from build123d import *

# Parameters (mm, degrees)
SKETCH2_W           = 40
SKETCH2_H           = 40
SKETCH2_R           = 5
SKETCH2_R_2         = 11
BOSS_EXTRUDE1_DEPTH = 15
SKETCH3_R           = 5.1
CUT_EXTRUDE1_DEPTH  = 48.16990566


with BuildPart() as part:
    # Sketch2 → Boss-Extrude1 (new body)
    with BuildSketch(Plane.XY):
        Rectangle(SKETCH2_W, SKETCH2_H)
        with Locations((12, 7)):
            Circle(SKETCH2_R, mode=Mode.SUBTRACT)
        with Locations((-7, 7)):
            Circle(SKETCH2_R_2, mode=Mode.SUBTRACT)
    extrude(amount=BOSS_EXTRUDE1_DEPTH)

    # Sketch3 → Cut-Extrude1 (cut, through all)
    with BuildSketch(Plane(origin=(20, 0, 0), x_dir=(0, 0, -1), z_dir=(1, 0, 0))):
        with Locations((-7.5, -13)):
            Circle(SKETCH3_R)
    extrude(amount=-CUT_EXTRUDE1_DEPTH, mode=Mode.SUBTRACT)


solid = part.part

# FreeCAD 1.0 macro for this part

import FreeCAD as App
import Part
import Sketcher

V = App.Vector
Q = App.Units.Quantity

doc = App.newDocument("Part")
body = doc.addObject("PartDesign::Body", "Body")

sketch1 = body.newObject("Sketcher::SketchObject", "Sketch")
sketch1.AttachmentSupport = (doc.getObject("XY_Plane"), [""])
sketch1.MapMode = "FlatFace"
sketch1.addGeometry([
    Part.LineSegment(V(-20, 20, 0), V(-20, -20, 0)),
    Part.LineSegment(V(-20, -20, 0), V(20, -20, 0)),
    Part.LineSegment(V(20, -20, 0), V(20, 20, 0)),
    Part.LineSegment(V(20, 20, 0), V(-20, 20, 0)),
    Part.Circle(V(-7, 7, 0), V(0, 0, 1), 11),
    Part.Circle(V(12, 7, 0), V(0, 0, 1), 5),
], False)
sketch1.addConstraint([
    Sketcher.Constraint("Coincident", 0, 2, 1, 1),
    Sketcher.Constraint("Coincident", 1, 2, 2, 1),
    Sketcher.Constraint("Coincident", 2, 2, 3, 1),
    Sketcher.Constraint("Coincident", 3, 2, 0, 1),
    Sketcher.Constraint("Vertical", 0),
    Sketcher.Constraint("Horizontal", 1),
    Sketcher.Constraint("Vertical", 2),
    Sketcher.Constraint("Horizontal", 3),
    Sketcher.Constraint("Symmetric", 0, 2, 2, 2, -1, 1),
    Sketcher.Constraint("Horizontal", 4, 3, 5, 3),
    Sketcher.Constraint("Equal", 3, 0),
    Sketcher.Constraint("Diameter", 4, Q("22 mm")),
    Sketcher.Constraint("Diameter", 5, Q("10 mm")),
    Sketcher.Constraint("DistanceX", 1, 1, 1, 2, Q("40 mm")),
    Sketcher.Constraint("DistanceX", 4, 3, -1, 1, Q("7 mm")),
    Sketcher.Constraint("DistanceY", -1, 1, 4, 3, Q("7 mm")),
    Sketcher.Constraint("DistanceX", -1, 1, 5, 3, Q("12 mm")),
])
pad1 = body.newObject("PartDesign::Pad", "Pad")
pad1.Profile = sketch1
pad1.Length = 15

sketch2 = body.newObject("Sketcher::SketchObject", "Sketch001")
sketch2.AttachmentSupport = (doc.getObject("YZ_Plane"), [""])
sketch2.MapMode = "FlatFace"
sketch2.AttachmentOffset = App.Placement(V(0, 0, 20), App.Rotation())
sketch2.addGeometry(Part.Circle(V(-13, 8, 0), V(0, 0, 1), 5), False)
sketch2.addConstraint([
    Sketcher.Constraint("Diameter", 0, Q("10.2 mm")),
    Sketcher.Constraint("DistanceX", 0, 3, -1, 1, Q("13 mm")),
    Sketcher.Constraint("DistanceY", -1, 1, 0, 3, Q("7.5 mm")),
])
pocket1 = body.newObject("PartDesign::Pocket", "Pocket")
pocket1.Profile = sketch2
pocket1.Type = "ThroughAll"

doc.recompute()
